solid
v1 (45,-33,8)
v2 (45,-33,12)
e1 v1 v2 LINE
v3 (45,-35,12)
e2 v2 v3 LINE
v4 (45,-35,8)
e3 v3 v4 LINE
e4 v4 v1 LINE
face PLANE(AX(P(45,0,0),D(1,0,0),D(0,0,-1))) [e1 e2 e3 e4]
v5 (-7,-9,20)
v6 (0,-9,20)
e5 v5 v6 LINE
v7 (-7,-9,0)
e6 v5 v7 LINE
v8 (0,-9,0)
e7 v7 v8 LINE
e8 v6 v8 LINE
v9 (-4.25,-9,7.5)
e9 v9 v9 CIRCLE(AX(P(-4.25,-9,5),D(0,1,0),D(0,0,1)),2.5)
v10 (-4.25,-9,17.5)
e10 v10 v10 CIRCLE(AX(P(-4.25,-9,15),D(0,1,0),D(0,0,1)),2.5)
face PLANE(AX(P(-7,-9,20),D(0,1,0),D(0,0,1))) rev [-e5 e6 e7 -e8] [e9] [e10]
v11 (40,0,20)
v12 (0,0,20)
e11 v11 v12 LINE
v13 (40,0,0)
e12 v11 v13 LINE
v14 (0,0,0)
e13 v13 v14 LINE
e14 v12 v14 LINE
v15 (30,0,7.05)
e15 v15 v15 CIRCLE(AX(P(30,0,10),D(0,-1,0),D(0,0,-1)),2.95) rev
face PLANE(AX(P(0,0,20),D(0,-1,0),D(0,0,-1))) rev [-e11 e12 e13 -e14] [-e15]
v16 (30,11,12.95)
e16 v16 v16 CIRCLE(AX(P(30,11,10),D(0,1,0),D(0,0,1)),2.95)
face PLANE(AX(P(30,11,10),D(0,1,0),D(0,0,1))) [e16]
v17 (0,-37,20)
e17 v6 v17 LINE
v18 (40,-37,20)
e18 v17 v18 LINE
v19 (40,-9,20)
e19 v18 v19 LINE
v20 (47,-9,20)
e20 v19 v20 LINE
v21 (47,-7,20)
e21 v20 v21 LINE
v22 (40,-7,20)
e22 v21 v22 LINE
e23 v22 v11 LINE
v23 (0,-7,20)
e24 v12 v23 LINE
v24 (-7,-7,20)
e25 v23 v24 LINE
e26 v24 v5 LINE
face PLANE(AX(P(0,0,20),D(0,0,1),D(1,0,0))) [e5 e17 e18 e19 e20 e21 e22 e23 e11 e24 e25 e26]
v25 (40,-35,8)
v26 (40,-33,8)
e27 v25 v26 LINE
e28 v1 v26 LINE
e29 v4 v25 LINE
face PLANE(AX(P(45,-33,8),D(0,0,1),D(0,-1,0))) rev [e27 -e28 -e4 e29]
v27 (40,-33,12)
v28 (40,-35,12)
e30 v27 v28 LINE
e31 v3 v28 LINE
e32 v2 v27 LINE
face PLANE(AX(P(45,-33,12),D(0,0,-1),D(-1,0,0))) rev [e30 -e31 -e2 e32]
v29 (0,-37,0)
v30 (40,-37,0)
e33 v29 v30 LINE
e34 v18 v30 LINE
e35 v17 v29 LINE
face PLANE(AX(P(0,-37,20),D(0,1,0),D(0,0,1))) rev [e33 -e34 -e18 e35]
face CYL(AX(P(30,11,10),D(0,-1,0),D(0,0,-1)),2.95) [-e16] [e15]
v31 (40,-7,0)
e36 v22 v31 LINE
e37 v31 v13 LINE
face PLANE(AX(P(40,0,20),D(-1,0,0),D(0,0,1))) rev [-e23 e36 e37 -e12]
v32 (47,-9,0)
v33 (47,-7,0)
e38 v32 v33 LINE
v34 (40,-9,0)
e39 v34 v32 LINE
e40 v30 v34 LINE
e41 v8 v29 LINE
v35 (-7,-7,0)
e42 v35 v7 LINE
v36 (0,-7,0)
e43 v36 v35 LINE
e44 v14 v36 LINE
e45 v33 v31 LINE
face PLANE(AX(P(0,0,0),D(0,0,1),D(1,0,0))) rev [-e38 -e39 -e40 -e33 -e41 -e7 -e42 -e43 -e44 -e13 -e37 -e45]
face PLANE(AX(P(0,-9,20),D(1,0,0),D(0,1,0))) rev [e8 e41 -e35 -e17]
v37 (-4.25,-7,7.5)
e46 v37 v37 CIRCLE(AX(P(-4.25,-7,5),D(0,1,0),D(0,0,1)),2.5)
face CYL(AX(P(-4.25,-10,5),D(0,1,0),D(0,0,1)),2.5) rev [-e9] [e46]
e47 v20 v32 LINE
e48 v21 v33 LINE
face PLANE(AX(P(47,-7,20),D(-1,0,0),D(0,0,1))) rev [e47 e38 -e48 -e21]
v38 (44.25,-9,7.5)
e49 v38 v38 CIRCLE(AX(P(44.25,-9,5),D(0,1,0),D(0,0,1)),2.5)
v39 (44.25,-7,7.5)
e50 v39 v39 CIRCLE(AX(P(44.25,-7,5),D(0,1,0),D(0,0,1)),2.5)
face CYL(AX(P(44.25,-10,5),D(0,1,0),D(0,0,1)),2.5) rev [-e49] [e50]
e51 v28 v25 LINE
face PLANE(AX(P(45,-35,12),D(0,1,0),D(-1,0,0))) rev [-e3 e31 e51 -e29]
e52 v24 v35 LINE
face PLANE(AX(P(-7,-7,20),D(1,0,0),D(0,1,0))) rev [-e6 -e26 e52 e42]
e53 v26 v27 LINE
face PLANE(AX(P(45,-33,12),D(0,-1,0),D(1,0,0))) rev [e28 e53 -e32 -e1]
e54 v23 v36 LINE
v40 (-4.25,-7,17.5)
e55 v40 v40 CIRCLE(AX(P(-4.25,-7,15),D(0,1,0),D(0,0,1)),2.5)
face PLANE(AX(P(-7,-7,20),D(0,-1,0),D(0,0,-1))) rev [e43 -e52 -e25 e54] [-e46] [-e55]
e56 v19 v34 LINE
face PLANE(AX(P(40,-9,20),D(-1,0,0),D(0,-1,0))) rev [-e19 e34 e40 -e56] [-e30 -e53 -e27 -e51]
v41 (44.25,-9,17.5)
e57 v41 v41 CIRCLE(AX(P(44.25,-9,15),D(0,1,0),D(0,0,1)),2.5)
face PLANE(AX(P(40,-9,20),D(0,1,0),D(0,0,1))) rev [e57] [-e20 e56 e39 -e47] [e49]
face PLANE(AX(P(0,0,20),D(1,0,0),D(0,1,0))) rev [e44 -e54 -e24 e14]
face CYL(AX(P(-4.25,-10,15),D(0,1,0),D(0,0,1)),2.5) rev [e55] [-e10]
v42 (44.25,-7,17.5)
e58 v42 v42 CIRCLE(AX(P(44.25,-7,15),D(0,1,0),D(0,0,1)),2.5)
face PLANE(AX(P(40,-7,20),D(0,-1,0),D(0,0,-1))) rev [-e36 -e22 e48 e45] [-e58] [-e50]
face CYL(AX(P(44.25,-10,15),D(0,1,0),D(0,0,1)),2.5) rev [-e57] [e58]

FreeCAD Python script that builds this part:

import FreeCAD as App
import Part
import Sketcher
from FreeCAD import Vector

doc = App.newDocument("Part")
body = doc.addObject("PartDesign::Body", "Body")

sketch1 = body.newObject("Sketcher::SketchObject", "Sketch")
sketch1.AttachmentSupport = (doc.getObject("XY_Plane"), [""])
sketch1.MapMode = "FlatFace"
sketch1.addGeometry([
    Part.LineSegment(Vector(0, -9, 0), Vector(0, -37, 0)),
    Part.LineSegment(Vector(0, -37, 0), Vector(40, -37, 0)),
    Part.LineSegment(Vector(40, -37, 0), Vector(40, -9, 0)),
    Part.LineSegment(Vector(40, -9, 0), Vector(47, -9, 0)),
    Part.LineSegment(Vector(47, -9, 0), Vector(47, -7, 0)),
    Part.LineSegment(Vector(47, -7, 0), Vector(40, -7, 0)),
    Part.LineSegment(Vector(40, -7, 0), Vector(40, 0, 0)),
    Part.LineSegment(Vector(40, 0, 0), Vector(0, 0, 0)),
    Part.LineSegment(Vector(0, 0, 0), Vector(0, -7, 0)),
    Part.LineSegment(Vector(0, -7, 0), Vector(-7, -7, 0)),
    Part.LineSegment(Vector(-7, -7, 0), Vector(-7, -9, 0)),
    Part.LineSegment(Vector(-7, -9, 0), Vector(0, -9, 0)),
], False)
sketch1.addConstraint([
    Sketcher.Constraint("Coincident", 0, 2, 1, 1),
    Sketcher.Constraint("Coincident", 1, 2, 2, 1),
    Sketcher.Constraint("Coincident", 2, 2, 3, 1),
    Sketcher.Constraint("Coincident", 3, 2, 4, 1),
    Sketcher.Constraint("Coincident", 4, 2, 5, 1),
    Sketcher.Constraint("Coincident", 5, 2, 6, 1),
    Sketcher.Constraint("Coincident", 6, 2, 7, 1),
    Sketcher.Constraint("Coincident", 7, 2, 8, 1),
    Sketcher.Constraint("Coincident", 8, 2, 9, 1),
    Sketcher.Constraint("Coincident", 9, 2, 10, 1),
    Sketcher.Constraint("Coincident", 10, 2, 11, 1),
    Sketcher.Constraint("Coincident", 11, 2, 0, 1),
    Sketcher.Constraint("Vertical", 0),
    Sketcher.Constraint("Horizontal", 1),
    Sketcher.Constraint("Vertical", 2),
    Sketcher.Constraint("Horizontal", 3),
    Sketcher.Constraint("Vertical", 4),
    Sketcher.Constraint("Horizontal", 5),
    Sketcher.Constraint("Vertical", 6),
    Sketcher.Constraint("Horizontal", 7),
    Sketcher.Constraint("Vertical", 8),
    Sketcher.Constraint("Horizontal", 9),
    Sketcher.Constraint("Vertical", 10),
    Sketcher.Constraint("Horizontal", 11),
    Sketcher.Constraint("Coincident", 7, 2, -1, 1),
    Sketcher.Constraint("PointOnObject", 0, 2, -2),
    Sketcher.Constraint("Horizontal", 5, 2, 8, 2),
    Sketcher.Constraint("Horizontal", 3, 2, 10, 2),
    Sketcher.Constraint("Vertical", 2, 2, 5, 2),
    Sketcher.Constraint("Equal", 5, 9),
    Sketcher.Constraint("Equal", 11, 6),
    Sketcher.Constraint("DistanceX", 1, 1, 1, 2, 40.0),
    Sketcher.Constraint("DistanceX", 3, 1, 3, 2, 7.0),
    Sketcher.Constraint("DistanceY", 0, 2, 0, 1, 28.0),
    Sketcher.Constraint("DistanceY", 4, 1, 4, 2, 2.0),
])
pad1 = body.newObject("PartDesign::Pad", "Pad")
pad1.Profile = sketch1
pad1.Length = 20

sketch2 = body.newObject("Sketcher::SketchObject", "Sketch001")
sketch2.AttachmentSupport = (doc.getObject("XZ_Plane"), [""])
sketch2.MapMode = "FlatFace"
sketch2.addGeometry(Part.Circle(Vector(30, 10, 0), Vector(0, 0, 1), 2.95), False)
sketch2.addConstraint([
    Sketcher.Constraint("Diameter", 0, 5.9),
    Sketcher.Constraint("DistanceX", -1, 1, 0, 3, 30.0),
    Sketcher.Constraint("DistanceY", -1, 1, 0, 3, 10.0),
])
pad2 = body.newObject("PartDesign::Pad", "Pad001")
pad2.Profile = sketch2
pad2.Length = 11
pad2.Reversed = True

sketch3 = body.newObject("Sketcher::SketchObject", "Sketch002")
sketch3.AttachmentSupport = (doc.getObject("XZ_Plane"), [""])
sketch3.MapMode = "FlatFace"
sketch3.AttachmentOffset = App.Placement(Vector(0, 0, 7), App.Rotation())
sketch3.addGeometry([
    Part.Circle(Vector(-4.25, 5, 0), Vector(0, 0, 1), 2.5),
    Part.Circle(Vector(-4.25, 15, 0), Vector(0, 0, 1), 2.5),
    Part.Circle(Vector(44.25, 5, 0), Vector(0, 0, 1), 2.5),
    Part.Circle(Vector(44.25, 15, 0), Vector(0, 0, 1), 2.5),
], False)
sketch3.addConstraint([
    Sketcher.Constraint("Equal", 0, 1),
    Sketcher.Constraint("Equal", 1, 2),
    Sketcher.Constraint("Equal", 2, 3),
    Sketcher.Constraint("Horizontal", 0, 3, 2, 3),
    Sketcher.Constraint("Horizontal", 1, 3, 3, 3),
    Sketcher.Constraint("Vertical", 0, 3, 1, 3),
    Sketcher.Constraint("Vertical", 2, 3, 3, 3),
    Sketcher.Constraint("Diameter", 0, 5.0),
    Sketcher.Constraint("DistanceY", -1, 1, 0, 3, 5.0),
    Sketcher.Constraint("DistanceY", -1, 1, 1, 3, 15.0),
    Sketcher.Constraint("DistanceX", 0, 3, 2, 3, 48.5),
    Sketcher.Constraint("DistanceX", 0, 3, -1, 1, 4.25),
])
pocket1 = body.newObject("PartDesign::Pocket", "Pocket")
pocket1.Profile = sketch3
pocket1.Length = 3
pocket1.Reversed = True

sketch4 = body.newObject("Sketcher::SketchObject", "Sketch003")
sketch4.AttachmentSupport = (doc.getObject("YZ_Plane"), [""])
sketch4.MapMode = "FlatFace"
sketch4.AttachmentOffset = App.Placement(Vector(0, 0, 40), App.Rotation())
sketch4.addGeometry([
    Part.LineSegment(Vector(-33, 12, 0), Vector(-35, 12, 0)),
    Part.LineSegment(Vector(-35, 12, 0), Vector(-35, 8, 0)),
    Part.LineSegment(Vector(-35, 8, 0), Vector(-33, 8, 0)),
    Part.LineSegment(Vector(-33, 8, 0), Vector(-33, 12, 0)),
], False)
sketch4.addConstraint([
    Sketcher.Constraint("Coincident", 0, 2, 1, 1),
    Sketcher.Constraint("Coincident", 1, 2, 2, 1),
    Sketcher.Constraint("Coincident", 2, 2, 3, 1),
    Sketcher.Constraint("Coincident", 3, 2, 0, 1),
    Sketcher.Constraint("Horizontal", 0),
    Sketcher.Constraint("Vertical", 1),
    Sketcher.Constraint("Horizontal", 2),
    Sketcher.Constraint("Vertical", 3),
    Sketcher.Constraint("DistanceX", 0, 2, 0, 1, 2.0),
    Sketcher.Constraint("DistanceY", 1, 2, 1, 1, 4.0),
    Sketcher.Constraint("DistanceX", 0, 2, -1, 1, 35.0),
    Sketcher.Constraint("DistanceY", -1, 1, 0, 2, 12.0),
])
pad3 = body.newObject("PartDesign::Pad", "Pad002")
pad3.Profile = sketch4
pad3.Length = 5

doc.recompute()
